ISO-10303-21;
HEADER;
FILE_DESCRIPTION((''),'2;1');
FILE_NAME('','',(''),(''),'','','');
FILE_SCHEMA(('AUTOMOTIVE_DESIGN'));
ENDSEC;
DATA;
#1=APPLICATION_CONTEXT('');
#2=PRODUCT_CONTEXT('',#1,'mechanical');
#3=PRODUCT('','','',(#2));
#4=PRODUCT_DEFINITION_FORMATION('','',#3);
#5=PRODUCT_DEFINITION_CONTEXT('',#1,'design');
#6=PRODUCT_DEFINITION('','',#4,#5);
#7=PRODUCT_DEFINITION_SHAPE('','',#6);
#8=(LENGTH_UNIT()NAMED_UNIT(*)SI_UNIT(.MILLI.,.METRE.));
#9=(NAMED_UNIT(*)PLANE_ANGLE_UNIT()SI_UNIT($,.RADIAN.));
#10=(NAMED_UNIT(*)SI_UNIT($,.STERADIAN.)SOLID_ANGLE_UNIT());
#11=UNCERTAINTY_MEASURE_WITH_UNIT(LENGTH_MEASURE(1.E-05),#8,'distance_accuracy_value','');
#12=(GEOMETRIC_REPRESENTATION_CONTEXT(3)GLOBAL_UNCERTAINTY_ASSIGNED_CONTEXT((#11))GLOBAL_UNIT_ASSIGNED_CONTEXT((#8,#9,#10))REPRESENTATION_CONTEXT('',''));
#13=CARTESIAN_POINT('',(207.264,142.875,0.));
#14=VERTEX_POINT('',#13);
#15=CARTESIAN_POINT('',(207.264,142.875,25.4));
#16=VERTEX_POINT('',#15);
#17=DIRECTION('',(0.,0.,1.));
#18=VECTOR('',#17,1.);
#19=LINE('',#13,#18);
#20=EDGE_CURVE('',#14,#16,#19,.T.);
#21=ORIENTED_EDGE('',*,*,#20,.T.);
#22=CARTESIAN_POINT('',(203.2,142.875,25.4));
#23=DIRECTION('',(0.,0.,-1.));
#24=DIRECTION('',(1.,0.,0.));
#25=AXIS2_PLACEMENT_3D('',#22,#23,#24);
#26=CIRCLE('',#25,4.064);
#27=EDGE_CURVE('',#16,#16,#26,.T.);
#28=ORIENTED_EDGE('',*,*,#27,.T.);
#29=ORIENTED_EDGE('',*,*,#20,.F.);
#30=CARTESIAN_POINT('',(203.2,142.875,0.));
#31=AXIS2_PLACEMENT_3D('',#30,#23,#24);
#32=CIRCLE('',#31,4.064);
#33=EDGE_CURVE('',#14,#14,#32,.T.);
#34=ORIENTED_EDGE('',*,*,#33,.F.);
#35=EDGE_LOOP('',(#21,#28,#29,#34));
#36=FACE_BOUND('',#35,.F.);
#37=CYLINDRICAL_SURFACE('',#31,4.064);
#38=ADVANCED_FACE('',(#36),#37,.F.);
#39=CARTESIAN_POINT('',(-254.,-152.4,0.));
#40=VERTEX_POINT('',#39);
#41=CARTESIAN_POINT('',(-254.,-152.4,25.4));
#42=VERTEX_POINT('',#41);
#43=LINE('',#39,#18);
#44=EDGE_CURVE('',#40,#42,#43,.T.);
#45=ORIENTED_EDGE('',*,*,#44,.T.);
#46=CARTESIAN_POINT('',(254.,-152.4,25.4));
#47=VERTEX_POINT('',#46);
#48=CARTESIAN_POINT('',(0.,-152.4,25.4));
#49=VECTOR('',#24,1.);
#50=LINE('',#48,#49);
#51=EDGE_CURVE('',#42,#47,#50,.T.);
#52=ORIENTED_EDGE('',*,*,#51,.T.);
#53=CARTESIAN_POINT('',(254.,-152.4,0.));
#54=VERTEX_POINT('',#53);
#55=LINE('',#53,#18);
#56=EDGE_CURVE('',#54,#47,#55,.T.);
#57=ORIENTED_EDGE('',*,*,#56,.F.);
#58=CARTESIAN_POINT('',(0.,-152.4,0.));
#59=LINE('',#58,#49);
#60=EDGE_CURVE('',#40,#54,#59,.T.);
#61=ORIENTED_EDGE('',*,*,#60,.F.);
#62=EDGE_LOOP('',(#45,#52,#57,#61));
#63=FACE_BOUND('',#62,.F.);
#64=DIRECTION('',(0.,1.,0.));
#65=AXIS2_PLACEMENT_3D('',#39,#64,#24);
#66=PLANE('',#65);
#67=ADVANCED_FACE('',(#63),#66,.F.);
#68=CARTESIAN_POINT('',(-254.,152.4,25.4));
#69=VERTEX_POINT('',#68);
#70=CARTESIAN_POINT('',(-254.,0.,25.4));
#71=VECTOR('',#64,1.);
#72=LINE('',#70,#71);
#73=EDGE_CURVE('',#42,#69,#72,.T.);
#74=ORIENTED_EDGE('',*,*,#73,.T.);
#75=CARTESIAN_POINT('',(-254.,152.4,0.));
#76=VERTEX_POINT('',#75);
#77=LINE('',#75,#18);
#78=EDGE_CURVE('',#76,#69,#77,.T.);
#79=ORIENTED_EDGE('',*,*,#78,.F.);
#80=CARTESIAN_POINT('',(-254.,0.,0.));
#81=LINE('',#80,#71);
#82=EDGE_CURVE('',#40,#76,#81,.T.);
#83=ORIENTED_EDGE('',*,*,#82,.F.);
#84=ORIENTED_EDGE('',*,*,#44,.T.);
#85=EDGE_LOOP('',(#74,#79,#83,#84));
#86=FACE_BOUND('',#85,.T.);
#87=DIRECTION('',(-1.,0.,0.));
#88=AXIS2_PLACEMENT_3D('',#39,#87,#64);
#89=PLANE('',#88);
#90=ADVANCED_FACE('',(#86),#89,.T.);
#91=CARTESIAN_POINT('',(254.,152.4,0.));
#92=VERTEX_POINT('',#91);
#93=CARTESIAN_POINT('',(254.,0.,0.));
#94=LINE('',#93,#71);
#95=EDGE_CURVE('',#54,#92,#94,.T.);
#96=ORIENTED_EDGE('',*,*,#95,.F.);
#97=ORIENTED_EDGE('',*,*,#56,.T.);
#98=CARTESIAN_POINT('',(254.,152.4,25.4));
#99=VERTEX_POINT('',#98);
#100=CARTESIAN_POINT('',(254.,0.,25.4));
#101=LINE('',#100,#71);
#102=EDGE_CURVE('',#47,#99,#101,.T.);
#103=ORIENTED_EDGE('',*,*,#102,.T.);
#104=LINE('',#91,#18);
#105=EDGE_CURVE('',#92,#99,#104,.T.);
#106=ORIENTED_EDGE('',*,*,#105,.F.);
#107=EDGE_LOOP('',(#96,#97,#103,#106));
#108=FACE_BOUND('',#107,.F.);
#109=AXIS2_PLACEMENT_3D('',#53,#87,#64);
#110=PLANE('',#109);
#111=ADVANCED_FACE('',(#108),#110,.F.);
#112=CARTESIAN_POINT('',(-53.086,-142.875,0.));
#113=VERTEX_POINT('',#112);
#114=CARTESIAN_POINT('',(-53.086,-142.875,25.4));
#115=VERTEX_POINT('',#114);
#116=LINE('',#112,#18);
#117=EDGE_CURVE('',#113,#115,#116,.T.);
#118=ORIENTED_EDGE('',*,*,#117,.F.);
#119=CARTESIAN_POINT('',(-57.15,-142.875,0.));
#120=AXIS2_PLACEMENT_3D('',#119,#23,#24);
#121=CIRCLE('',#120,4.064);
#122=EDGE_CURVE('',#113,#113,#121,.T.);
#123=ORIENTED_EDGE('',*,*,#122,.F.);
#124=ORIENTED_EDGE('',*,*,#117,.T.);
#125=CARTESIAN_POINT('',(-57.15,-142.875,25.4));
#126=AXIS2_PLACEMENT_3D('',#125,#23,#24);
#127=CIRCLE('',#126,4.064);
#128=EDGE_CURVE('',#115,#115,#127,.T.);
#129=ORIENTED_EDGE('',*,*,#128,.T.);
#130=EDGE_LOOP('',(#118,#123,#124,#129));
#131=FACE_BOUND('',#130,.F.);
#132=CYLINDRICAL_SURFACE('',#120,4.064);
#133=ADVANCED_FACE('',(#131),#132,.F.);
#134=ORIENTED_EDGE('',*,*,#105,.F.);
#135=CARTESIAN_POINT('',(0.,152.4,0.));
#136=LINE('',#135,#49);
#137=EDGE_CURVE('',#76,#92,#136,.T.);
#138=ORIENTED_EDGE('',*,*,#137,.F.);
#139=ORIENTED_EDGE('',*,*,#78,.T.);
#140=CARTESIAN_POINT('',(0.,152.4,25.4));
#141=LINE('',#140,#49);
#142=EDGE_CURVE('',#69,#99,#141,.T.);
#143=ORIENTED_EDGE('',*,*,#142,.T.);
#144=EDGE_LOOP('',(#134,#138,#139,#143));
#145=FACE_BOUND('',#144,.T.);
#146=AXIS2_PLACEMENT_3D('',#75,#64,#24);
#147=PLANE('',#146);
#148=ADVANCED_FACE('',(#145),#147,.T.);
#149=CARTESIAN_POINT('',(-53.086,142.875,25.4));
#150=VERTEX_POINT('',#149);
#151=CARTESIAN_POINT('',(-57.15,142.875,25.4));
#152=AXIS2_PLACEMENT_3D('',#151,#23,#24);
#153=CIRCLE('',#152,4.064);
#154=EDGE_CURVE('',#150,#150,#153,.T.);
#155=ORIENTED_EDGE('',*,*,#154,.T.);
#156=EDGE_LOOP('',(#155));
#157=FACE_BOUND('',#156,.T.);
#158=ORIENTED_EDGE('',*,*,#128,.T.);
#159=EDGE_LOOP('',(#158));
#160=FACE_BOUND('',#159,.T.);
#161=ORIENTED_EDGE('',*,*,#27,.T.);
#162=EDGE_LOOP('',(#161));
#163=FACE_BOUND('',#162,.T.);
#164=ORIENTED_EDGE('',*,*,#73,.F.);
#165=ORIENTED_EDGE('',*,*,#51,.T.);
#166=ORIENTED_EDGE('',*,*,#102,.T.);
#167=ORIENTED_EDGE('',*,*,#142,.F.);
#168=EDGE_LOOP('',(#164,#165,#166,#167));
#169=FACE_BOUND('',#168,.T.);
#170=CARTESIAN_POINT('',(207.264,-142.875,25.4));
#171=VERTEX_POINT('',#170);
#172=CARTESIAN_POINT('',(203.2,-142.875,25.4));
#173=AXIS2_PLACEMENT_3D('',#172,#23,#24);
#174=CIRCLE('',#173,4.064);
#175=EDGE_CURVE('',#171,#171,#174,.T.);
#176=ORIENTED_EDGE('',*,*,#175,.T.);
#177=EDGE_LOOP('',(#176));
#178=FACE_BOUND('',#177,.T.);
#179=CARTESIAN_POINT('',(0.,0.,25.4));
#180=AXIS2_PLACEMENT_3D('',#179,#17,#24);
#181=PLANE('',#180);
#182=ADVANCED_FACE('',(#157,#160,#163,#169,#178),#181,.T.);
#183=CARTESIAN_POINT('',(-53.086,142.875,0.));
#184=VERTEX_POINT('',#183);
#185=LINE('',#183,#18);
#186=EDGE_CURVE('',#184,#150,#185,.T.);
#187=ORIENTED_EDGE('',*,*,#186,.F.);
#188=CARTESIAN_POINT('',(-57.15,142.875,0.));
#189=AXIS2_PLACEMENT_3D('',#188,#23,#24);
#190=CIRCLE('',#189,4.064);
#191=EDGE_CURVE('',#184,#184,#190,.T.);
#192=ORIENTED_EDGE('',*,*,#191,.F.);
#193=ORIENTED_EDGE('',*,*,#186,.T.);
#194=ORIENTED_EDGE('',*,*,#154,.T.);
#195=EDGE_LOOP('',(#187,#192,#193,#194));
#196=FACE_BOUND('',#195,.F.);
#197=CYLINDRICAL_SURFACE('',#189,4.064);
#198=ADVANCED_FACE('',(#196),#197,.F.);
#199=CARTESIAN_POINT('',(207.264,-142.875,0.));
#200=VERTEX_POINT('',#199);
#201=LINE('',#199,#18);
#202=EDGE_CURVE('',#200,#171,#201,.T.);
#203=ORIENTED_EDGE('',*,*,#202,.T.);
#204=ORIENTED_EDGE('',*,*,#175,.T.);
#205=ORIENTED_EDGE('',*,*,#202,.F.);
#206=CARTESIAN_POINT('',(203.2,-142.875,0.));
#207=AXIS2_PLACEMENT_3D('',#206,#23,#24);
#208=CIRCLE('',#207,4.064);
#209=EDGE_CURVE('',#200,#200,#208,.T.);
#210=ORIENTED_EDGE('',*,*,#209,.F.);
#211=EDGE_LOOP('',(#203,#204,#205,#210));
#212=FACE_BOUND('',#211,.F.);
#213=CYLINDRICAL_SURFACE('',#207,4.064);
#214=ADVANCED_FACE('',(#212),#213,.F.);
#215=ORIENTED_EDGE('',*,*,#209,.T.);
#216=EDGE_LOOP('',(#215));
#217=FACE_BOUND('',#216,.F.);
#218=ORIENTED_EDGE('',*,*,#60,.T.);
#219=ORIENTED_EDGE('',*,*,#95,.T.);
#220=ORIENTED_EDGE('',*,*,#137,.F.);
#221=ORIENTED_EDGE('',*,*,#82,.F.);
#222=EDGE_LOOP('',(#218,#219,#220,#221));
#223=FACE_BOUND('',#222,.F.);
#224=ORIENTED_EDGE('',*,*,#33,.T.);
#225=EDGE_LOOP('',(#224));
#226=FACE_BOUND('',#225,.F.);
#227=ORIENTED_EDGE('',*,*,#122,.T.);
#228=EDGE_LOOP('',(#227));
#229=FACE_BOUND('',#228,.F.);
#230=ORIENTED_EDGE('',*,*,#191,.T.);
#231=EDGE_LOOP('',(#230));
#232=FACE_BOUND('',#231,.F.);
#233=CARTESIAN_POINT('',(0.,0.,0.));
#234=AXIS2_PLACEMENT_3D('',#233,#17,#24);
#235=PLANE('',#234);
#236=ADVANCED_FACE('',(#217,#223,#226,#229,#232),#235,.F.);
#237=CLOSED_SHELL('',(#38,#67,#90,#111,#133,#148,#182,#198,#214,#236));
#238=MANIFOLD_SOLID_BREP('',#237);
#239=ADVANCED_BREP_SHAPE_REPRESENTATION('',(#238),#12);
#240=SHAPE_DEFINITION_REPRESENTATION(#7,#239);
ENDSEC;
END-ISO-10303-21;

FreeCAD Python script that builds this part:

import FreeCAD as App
import Part
import Sketcher

V = App.Vector
Q = App.Units.Quantity


def add_polygon(sketch, points):
    """Adds a closed chain of lines whose ends are joined by coincident constraints."""
    first, n = sketch.GeometryCount, len(points)
    for a, b in zip(points, points[1:] + points[:1]):
        sketch.addGeometry(Part.LineSegment(App.Vector(*a, 0), App.Vector(*b, 0)), False)
    for i in range(n):
        sketch.addConstraint(Sketcher.Constraint("Coincident", first + i, 2, first + (i + 1) % n, 1))

doc = App.newDocument("Part")
body = doc.addObject("PartDesign::Body", "Body")

# Sketch on XY plane
sketch1 = body.newObject("Sketcher::SketchObject", "Sketch")
sketch1.AttachmentSupport = (doc.getObject("XY_Plane"), [""])
sketch1.MapMode = "FlatFace"
add_polygon(sketch1, [(-254, 152.4), (-254, -152.4), (254, -152.4), (254, 152.4)])  # lines 0-3
sketch1.addConstraint([
    Sketcher.Constraint("Vertical", 0),
    Sketcher.Constraint("Horizontal", 1),
    Sketcher.Constraint("Vertical", 2),
    Sketcher.Constraint("Horizontal", 3),
    Sketcher.Constraint("Symmetric", 0, 2, 2, 2, -1, 1),
    Sketcher.Constraint("DistanceX", 1, 1, 1, 2, Q("20 in")),
    Sketcher.Constraint("DistanceY", 0, 2, 0, 1, Q("12 in")),
])
pad1 = body.newObject("PartDesign::Pad", "Pad")
pad1.Profile = sketch1
pad1.Length = Q("1 in")

# Sketch on XY plane
sketch2 = body.newObject("Sketcher::SketchObject", "Sketch001")
sketch2.AttachmentSupport = (doc.getObject("XY_Plane"), [""])
sketch2.MapMode = "FlatFace"
sketch2.addGeometry([
    Part.Circle(V(-57.15, -142.875, 0), V(0, 0, 1), 4.064),
    Part.Circle(V(203.2, -142.875, 0), V(0, 0, 1), 4.064),
    Part.Circle(V(203.2, 142.875, 0), V(0, 0, 1), 4.064),
    Part.Circle(V(-57.15, 142.875, 0), V(0, 0, 1), 4.064),
], False)
sketch2.addConstraint([
    Sketcher.Constraint("Equal", 0, 1),
    Sketcher.Constraint("Equal", 1, 2),
    Sketcher.Constraint("Equal", 2, 3),
    Sketcher.Constraint("Symmetric", 1, 3, 2, 3, -1),
    Sketcher.Constraint("Symmetric", 0, 3, 3, 3, -1),
    Sketcher.Constraint("Horizontal", 0, 3, 1, 3),
    Sketcher.Constraint("Diameter", 0, Q("0.32 in")),
    Sketcher.Constraint("DistanceX", -1, 1, 1, 3, Q("8 in")),
    Sketcher.Constraint("DistanceX", 0, 3, -1, 1, Q("2.25 in")),
    Sketcher.Constraint("DistanceY", 1, 3, 2, 3, Q("11.25 in")),
])
pocket1 = body.newObject("PartDesign::Pocket", "Pocket")
pocket1.Profile = sketch2
pocket1.Type = "ThroughAll"
pocket1.Reversed = True

doc.recompute()
